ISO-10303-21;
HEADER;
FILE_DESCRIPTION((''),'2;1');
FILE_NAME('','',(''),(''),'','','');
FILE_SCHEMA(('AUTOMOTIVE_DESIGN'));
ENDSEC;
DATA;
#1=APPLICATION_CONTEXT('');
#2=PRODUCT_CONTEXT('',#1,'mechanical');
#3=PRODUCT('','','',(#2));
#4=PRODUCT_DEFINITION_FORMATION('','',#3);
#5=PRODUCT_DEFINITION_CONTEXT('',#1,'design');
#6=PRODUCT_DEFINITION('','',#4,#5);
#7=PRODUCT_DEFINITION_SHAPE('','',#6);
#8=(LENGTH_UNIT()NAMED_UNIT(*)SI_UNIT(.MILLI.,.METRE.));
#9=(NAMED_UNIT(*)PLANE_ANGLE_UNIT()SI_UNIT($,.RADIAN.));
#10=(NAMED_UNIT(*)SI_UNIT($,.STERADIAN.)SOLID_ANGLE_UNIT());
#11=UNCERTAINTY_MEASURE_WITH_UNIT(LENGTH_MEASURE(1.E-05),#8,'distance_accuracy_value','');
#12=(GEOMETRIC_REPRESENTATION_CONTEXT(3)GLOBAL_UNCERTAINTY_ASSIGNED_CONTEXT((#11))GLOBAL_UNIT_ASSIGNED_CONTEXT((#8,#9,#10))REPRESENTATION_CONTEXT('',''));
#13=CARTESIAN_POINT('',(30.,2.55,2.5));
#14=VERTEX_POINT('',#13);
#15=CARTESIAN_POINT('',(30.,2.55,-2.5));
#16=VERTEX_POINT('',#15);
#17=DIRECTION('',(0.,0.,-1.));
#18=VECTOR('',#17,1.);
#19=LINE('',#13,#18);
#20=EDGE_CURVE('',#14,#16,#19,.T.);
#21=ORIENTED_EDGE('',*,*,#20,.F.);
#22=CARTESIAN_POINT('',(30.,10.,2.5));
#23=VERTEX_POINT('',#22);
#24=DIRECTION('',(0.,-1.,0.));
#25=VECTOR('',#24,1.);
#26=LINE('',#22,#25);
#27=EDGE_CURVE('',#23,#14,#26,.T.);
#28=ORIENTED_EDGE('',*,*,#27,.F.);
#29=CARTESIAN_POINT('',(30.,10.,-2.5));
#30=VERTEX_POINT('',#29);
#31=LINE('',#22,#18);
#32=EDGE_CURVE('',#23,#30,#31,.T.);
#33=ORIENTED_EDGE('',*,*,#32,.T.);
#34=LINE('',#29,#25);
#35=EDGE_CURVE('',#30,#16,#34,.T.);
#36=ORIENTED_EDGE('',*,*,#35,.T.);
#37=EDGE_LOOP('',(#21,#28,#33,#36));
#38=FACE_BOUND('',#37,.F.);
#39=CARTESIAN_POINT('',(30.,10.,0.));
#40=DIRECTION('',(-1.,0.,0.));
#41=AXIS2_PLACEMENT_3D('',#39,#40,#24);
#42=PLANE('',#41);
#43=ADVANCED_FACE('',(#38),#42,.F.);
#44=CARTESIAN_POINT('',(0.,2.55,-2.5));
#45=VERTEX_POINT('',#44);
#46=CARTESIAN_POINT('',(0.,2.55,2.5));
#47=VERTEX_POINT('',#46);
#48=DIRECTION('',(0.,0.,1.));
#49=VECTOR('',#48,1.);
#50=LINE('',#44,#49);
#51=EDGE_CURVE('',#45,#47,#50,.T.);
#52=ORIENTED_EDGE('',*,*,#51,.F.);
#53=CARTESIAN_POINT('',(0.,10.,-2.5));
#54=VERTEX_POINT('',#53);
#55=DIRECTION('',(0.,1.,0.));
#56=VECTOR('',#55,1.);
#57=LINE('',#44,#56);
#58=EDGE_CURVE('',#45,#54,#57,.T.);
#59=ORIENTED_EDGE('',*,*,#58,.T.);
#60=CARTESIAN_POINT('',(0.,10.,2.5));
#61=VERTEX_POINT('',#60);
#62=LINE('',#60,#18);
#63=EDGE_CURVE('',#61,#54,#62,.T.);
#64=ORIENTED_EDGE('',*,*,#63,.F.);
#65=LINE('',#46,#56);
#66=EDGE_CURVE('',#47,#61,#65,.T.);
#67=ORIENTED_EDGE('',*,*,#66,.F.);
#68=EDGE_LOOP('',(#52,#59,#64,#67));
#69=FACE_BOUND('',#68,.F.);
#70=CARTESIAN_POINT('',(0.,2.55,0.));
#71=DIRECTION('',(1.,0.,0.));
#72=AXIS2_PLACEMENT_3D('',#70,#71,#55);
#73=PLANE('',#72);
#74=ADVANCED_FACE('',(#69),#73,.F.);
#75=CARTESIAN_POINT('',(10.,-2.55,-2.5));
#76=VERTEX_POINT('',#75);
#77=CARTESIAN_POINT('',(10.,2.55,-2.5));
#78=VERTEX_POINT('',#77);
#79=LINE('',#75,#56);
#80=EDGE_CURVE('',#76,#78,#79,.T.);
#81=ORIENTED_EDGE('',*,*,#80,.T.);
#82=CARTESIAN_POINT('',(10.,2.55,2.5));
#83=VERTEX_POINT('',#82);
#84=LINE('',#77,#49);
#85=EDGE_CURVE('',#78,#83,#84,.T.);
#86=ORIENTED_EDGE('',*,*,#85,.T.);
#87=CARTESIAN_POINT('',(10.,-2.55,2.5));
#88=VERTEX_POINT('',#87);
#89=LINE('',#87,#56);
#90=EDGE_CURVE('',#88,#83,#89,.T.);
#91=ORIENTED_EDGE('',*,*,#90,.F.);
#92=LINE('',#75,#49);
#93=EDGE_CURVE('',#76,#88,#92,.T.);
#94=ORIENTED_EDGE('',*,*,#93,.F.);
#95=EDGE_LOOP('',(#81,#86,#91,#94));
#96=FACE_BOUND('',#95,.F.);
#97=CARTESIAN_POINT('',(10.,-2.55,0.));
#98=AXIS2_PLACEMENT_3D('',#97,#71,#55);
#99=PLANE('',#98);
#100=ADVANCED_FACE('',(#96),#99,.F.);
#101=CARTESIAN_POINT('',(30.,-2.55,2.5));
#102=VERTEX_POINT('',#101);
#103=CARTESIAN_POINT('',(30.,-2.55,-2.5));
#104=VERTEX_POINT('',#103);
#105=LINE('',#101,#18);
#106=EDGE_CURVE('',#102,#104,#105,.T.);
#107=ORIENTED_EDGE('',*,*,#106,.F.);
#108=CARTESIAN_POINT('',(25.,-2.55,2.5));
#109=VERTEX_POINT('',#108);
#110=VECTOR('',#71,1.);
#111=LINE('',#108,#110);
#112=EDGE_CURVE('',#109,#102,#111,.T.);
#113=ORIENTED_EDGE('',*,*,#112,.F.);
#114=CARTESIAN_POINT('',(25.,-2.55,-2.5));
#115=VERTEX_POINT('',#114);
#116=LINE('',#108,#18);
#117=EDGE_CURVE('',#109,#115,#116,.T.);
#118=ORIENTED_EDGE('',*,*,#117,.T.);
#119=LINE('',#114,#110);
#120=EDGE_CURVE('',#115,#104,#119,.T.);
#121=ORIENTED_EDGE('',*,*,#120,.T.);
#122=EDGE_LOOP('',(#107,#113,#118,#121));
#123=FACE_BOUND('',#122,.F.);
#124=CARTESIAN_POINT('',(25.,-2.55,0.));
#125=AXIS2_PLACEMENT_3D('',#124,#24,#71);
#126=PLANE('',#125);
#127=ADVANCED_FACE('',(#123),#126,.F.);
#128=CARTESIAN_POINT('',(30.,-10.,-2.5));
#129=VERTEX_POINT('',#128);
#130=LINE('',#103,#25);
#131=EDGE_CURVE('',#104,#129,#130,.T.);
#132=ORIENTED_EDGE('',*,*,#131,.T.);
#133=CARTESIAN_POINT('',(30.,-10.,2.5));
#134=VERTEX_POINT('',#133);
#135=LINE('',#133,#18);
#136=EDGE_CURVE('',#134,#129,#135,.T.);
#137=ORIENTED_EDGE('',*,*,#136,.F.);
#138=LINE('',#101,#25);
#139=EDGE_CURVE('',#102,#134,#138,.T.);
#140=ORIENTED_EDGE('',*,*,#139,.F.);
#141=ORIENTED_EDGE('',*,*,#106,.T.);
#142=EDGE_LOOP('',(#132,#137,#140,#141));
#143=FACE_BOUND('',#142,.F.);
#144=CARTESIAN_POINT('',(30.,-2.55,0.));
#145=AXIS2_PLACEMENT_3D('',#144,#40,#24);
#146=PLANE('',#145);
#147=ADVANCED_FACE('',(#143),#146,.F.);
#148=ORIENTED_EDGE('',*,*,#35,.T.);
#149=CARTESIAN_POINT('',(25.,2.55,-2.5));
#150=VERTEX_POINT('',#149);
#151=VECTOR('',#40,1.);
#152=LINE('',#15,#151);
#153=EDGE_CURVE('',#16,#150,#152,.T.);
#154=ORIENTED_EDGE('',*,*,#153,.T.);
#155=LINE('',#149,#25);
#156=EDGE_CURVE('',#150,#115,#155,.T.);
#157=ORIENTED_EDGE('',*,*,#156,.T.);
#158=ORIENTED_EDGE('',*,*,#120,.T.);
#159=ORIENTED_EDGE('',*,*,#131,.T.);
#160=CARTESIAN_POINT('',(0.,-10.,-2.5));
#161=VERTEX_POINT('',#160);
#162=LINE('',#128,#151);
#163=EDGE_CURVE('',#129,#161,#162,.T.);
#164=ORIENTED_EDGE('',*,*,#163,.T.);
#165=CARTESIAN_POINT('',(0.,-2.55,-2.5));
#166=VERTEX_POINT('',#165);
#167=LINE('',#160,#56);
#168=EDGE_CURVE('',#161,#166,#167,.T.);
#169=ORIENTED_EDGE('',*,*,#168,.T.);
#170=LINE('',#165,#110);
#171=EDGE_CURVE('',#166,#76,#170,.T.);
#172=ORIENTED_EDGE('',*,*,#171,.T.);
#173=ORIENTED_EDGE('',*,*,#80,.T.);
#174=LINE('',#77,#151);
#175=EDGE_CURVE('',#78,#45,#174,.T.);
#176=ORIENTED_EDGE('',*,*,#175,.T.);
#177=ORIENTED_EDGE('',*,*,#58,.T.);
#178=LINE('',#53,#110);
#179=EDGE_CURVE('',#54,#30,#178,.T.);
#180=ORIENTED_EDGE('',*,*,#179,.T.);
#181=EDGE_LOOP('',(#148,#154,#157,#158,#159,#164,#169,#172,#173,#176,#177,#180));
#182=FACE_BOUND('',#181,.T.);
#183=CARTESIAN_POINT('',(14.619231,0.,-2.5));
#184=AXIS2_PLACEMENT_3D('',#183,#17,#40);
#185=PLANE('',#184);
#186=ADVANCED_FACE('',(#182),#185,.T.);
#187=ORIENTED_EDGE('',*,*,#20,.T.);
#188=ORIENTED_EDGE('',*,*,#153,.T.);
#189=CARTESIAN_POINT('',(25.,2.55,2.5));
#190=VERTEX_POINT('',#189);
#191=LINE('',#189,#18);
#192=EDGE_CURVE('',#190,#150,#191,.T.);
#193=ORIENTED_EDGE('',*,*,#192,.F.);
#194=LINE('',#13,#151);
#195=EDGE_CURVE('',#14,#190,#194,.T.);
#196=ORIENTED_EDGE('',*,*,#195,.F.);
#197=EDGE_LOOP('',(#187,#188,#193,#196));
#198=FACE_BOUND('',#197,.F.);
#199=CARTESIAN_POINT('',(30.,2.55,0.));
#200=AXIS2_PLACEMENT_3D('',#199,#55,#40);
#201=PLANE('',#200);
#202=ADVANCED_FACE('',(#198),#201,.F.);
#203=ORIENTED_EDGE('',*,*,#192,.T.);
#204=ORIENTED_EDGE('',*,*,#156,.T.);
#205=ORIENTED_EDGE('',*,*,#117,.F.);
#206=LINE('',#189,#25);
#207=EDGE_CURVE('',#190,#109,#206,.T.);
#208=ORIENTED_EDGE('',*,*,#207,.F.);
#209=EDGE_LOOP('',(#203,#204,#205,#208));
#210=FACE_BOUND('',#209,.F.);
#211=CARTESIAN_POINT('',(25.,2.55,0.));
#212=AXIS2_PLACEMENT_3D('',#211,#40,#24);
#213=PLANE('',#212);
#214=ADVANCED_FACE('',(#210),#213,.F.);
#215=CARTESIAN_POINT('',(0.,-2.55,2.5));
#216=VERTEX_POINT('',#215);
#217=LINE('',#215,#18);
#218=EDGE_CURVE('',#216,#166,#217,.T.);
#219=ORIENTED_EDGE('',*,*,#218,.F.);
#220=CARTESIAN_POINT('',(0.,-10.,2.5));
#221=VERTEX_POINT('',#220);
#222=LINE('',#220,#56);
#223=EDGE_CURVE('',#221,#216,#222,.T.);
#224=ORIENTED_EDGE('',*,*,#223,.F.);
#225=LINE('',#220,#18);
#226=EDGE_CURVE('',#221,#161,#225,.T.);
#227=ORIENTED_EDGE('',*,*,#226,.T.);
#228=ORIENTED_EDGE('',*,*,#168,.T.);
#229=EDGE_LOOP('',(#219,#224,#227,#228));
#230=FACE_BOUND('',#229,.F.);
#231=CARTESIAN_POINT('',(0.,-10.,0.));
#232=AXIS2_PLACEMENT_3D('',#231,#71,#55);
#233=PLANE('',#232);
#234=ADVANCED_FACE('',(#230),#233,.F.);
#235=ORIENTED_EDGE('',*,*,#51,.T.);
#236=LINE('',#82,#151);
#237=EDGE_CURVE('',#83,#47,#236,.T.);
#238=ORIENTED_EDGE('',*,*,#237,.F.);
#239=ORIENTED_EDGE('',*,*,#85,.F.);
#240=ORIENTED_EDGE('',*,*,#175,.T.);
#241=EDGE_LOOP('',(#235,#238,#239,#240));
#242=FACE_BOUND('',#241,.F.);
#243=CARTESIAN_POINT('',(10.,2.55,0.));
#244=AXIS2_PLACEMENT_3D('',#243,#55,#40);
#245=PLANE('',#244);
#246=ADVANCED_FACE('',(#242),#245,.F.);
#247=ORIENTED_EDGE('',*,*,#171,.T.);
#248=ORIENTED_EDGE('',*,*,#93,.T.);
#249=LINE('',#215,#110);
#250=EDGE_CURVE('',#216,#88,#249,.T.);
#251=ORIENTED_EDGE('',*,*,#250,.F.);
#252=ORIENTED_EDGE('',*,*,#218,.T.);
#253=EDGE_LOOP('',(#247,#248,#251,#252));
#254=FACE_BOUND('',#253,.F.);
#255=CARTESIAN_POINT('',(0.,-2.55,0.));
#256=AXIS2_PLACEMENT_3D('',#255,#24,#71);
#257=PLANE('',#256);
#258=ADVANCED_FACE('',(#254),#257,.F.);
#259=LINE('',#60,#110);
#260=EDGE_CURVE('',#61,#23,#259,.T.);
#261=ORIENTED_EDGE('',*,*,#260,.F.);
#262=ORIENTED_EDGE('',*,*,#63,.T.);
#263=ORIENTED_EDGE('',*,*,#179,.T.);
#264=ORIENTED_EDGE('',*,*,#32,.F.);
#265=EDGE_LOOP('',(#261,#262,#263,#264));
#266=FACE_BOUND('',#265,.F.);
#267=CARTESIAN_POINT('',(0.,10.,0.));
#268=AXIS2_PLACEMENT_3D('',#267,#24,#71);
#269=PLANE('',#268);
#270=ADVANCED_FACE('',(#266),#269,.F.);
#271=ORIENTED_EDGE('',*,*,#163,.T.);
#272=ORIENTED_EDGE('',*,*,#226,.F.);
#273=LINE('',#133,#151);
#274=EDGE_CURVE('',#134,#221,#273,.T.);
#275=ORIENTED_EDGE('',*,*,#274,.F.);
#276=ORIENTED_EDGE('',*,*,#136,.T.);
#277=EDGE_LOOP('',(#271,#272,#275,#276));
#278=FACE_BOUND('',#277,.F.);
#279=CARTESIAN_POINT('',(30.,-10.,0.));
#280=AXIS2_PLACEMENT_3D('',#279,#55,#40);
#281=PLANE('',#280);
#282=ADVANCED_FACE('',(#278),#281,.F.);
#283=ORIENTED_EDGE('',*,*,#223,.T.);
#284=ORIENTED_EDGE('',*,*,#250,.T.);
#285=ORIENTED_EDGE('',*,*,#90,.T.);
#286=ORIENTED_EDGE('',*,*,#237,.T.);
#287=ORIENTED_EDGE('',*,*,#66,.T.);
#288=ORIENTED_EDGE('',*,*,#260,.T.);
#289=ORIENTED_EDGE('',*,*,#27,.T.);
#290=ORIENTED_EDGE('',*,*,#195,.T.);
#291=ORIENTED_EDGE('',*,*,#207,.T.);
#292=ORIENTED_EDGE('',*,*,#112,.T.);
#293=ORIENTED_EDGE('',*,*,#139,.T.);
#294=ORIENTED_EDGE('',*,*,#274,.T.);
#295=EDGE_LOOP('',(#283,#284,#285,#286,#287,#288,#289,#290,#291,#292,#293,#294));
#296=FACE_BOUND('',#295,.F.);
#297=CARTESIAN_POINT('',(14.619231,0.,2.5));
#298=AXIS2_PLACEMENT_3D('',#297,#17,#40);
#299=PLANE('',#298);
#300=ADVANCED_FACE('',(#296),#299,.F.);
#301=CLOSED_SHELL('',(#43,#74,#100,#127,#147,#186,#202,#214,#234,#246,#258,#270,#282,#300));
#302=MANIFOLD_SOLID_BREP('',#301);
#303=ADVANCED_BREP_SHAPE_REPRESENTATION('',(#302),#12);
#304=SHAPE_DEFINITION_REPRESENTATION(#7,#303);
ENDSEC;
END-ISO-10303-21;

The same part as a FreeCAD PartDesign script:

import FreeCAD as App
import Part
import Sketcher
Q = App.Units.Quantity

doc = App.newDocument("Part")
body = doc.addObject("PartDesign::Body", "Body")

sketch1 = doc.addObject("Sketcher::SketchObject", "Sketch")
body.addObject(sketch1)
sketch1.AttachmentSupport = (doc.XY_Plane, [""])
sketch1.MapMode = "FlatFace"
sketch1.addGeometry([
    Part.LineSegment(App.Vector(0, 10, 0), App.Vector(0, 3, 0)),
    Part.LineSegment(App.Vector(0, 3, 0), App.Vector(10, 3, 0)),
    Part.LineSegment(App.Vector(10, 3, 0), App.Vector(10, -3, 0)),
    Part.LineSegment(App.Vector(10, -3, 0), App.Vector(0, -3, 0)),
    Part.LineSegment(App.Vector(0, -3, 0), App.Vector(0, -10, 0)),
    Part.LineSegment(App.Vector(0, -10, 0), App.Vector(30, -10, 0)),
    Part.LineSegment(App.Vector(30, -10, 0), App.Vector(30, -3, 0)),
    Part.LineSegment(App.Vector(30, -3, 0), App.Vector(25, -3, 0)),
    Part.LineSegment(App.Vector(25, -3, 0), App.Vector(25, 3, 0)),
    Part.LineSegment(App.Vector(25, 3, 0), App.Vector(30, 3, 0)),
    Part.LineSegment(App.Vector(30, 3, 0), App.Vector(30, 10, 0)),
    Part.LineSegment(App.Vector(30, 10, 0), App.Vector(0, 10, 0)),
], False)
sketch1.addConstraint([
    Sketcher.Constraint("Coincident", 0, 2, 1, 1),
    Sketcher.Constraint("Coincident", 1, 2, 2, 1),
    Sketcher.Constraint("Coincident", 2, 2, 3, 1),
    Sketcher.Constraint("Coincident", 3, 2, 4, 1),
    Sketcher.Constraint("Coincident", 4, 2, 5, 1),
    Sketcher.Constraint("Coincident", 5, 2, 6, 1),
    Sketcher.Constraint("Coincident", 6, 2, 7, 1),
    Sketcher.Constraint("Coincident", 7, 2, 8, 1),
    Sketcher.Constraint("Coincident", 8, 2, 9, 1),
    Sketcher.Constraint("Coincident", 9, 2, 10, 1),
    Sketcher.Constraint("Coincident", 10, 2, 11, 1),
    Sketcher.Constraint("Coincident", 11, 2, 0, 1),
    Sketcher.Constraint("Vertical", 0),
    Sketcher.Constraint("Horizontal", 1),
    Sketcher.Constraint("Vertical", 2),
    Sketcher.Constraint("Horizontal", 3),
    Sketcher.Constraint("Vertical", 4),
    Sketcher.Constraint("Horizontal", 5),
    Sketcher.Constraint("Vertical", 6),
    Sketcher.Constraint("Horizontal", 7),
    Sketcher.Constraint("Vertical", 8),
    Sketcher.Constraint("Horizontal", 9),
    Sketcher.Constraint("Vertical", 10),
    Sketcher.Constraint("Horizontal", 11),
    Sketcher.Constraint("Symmetric", 0, 2, 3, 2, -1, 1),
    Sketcher.Constraint("Symmetric", 6, 2, 9, 2, -1),
    Sketcher.Constraint("Symmetric", 4, 2, 11, 2, -1),
    Sketcher.Constraint("Horizontal", 3, 2, 6, 2),
    Sketcher.Constraint("DistanceX", 1, 1, 1, 2, Q("10 mm")),
    Sketcher.Constraint("DistanceX", 5, 1, 5, 2, Q("30 mm")),
    Sketcher.Constraint("DistanceX", 7, 2, 7, 1, Q("5 mm")),
    Sketcher.Constraint("DistanceY", 2, 2, 2, 1, Q("5.1 mm")),
    Sketcher.Constraint("DistanceY", 4, 2, -1, 1, Q("10 mm")),
])
pad1 = doc.addObject("PartDesign::Pad", "Pad")
body.addObject(pad1)
pad1.Profile = sketch1
pad1.Length = 5
pad1.Midplane = True

doc.recompute()
